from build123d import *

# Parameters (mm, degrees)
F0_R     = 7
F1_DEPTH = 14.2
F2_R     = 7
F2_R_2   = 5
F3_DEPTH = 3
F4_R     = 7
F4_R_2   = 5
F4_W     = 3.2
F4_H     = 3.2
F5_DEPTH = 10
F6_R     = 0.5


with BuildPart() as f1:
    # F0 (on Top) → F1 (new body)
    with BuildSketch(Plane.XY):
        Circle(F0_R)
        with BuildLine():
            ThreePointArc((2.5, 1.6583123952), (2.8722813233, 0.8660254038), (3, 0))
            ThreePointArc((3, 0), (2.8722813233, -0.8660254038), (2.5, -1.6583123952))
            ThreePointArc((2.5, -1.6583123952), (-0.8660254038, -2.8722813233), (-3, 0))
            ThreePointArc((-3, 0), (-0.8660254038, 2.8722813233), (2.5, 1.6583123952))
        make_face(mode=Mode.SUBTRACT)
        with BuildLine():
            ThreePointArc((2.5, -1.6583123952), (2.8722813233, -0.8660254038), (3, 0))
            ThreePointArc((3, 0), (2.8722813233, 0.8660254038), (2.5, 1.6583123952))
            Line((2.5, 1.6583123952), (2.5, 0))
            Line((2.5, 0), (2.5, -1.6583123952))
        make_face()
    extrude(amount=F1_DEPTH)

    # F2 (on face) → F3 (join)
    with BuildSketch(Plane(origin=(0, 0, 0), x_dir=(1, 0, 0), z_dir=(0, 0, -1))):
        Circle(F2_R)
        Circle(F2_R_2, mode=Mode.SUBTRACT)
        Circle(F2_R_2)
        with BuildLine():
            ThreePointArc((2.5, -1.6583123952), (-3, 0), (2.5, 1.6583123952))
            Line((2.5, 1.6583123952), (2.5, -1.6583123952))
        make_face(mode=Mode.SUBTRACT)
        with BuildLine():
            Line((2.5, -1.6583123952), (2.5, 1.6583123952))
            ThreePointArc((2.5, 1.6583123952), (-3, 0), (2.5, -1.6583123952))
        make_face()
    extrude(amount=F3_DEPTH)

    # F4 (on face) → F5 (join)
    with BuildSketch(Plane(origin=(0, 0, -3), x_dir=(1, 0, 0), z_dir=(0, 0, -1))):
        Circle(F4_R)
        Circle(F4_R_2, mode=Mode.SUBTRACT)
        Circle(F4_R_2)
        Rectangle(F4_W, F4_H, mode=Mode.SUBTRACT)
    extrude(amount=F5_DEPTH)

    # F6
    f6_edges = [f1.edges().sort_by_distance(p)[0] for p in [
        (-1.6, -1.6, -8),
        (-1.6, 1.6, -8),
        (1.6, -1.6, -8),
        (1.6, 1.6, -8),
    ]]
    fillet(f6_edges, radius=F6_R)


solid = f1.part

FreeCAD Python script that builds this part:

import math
import FreeCAD as App
import Part
import Sketcher

V = App.Vector
Q = App.Units.Quantity


def edges_at(feature, points):
    """Names of the edges that pass closest to the given points."""
    edges = feature.Shape.Edges
    near = lambda p: min(range(len(edges)), key=lambda i: edges[i].distToShape(Part.Vertex(*p))[0])
    return sorted({f"Edge{near(p) + 1}" for p in points})


def add_polygon(sketch, points):
    """Adds a closed chain of lines whose ends are joined by coincident constraints."""
    first, n = sketch.GeometryCount, len(points)
    for a, b in zip(points, points[1:] + points[:1]):
        sketch.addGeometry(Part.LineSegment(App.Vector(*a, 0), App.Vector(*b, 0)), False)
    for i in range(n):
        sketch.addConstraint(Sketcher.Constraint("Coincident", first + i, 2, first + (i + 1) % n, 1))

doc = App.newDocument("Part")
params = doc.addObject("Spreadsheet::Sheet", "Params")
for row, (alias, value) in enumerate([
    ("sketch1_diameter", "14 mm"),
    ("sketch1_radius", "3 mm"),
    ("pad1_length", "14.2 mm"),
    ("sketch2_diameter", "14 mm"),
    ("pad2_length", "3 mm"),
    ("sketch3_diameter", "14 mm"),
    ("sketch3_width", "3.2 mm"),
    ("pad3_length", "10 mm"),
    ("fillet_radius", "0.5 mm"),
], start=1):
    params.set(f"A{row}", alias)
    params.set(f"B{row}", "=" + value)
    params.setAlias(f"B{row}", alias)

body = doc.addObject("PartDesign::Body", "Body")

# Sketch on XY plane
sketch1 = body.newObject("Sketcher::SketchObject", "Sketch")
sketch1.AttachmentSupport = (doc.getObject("XY_Plane"), [""])
sketch1.MapMode = "FlatFace"
sketch1.addGeometry(Part.Circle(V(0, 0, 0), V(0, 0, 1), 7), False)
sketch1.addGeometry(Part.ArcOfCircle(Part.Circle(V(0, 0, 0), V(0, 0, 1), 3), math.radians(33.55731), math.radians(180)), False)
sketch1.addGeometry(Part.LineSegment(V(2.5, 1.658312, 0), V(2.5, -1.658312, 0)), False)
sketch1.addGeometry(Part.ArcOfCircle(Part.Circle(V(0, 0, 0), V(0, 0, 1), 3), math.radians(180), math.radians(326.44269)), False)
sketch1.addConstraint(Sketcher.Constraint("Coincident", 1, 1, 2, 1))
sketch1.addConstraint(Sketcher.Constraint("Coincident", 2, 2, 3, 2))
sketch1.addConstraint(Sketcher.Constraint("Tangent", 3, 1, 1, 2))
sketch1.addConstraint(Sketcher.Constraint("Vertical", 2))
sketch1.addConstraint(Sketcher.Constraint("Coincident", 0, 3, -1, 1))
sketch1.addConstraint(Sketcher.Constraint("Coincident", 1, 3, -1, 1))
sketch1.addConstraint(Sketcher.Constraint("Equal", 1, 3))
sketch1.addConstraint(Sketcher.Constraint("PointOnObject", 3, 1, -1))
sketch1.addConstraint(Sketcher.Constraint("Diameter", 0, Q("14 mm")))
sketch1.addConstraint(Sketcher.Constraint("Radius", 1, Q("3 mm")))
sketch1.addConstraint(Sketcher.Constraint("DistanceX", -1, 1, 1, 1, Q("2.5 mm")))
sketch1.setExpression("Constraints[8]", "Params.sketch1_diameter")
sketch1.setExpression("Constraints[9]", "Params.sketch1_radius")
pad1 = body.newObject("PartDesign::Pad", "Pad")
pad1.Profile = sketch1
pad1.setExpression("Length", "Params.pad1_length")

# Sketch on XY plane
sketch2 = body.newObject("Sketcher::SketchObject", "Sketch001")
sketch2.AttachmentSupport = (doc.getObject("XY_Plane"), [""])
sketch2.MapMode = "FlatFace"
sketch2.addGeometry(Part.Circle(V(0, 0, 0), V(0, 0, 1), 7), False)
sketch2.addConstraint(Sketcher.Constraint("Coincident", 0, 3, -1, 1))
sketch2.addConstraint(Sketcher.Constraint("Diameter", 0, Q("14 mm")))
sketch2.setExpression("Constraints[1]", "Params.sketch2_diameter")
pad2 = body.newObject("PartDesign::Pad", "Pad001")
pad2.Profile = sketch2
pad2.setExpression("Length", "Params.pad2_length")
pad2.Reversed = True

# Sketch on XY plane
sketch3 = body.newObject("Sketcher::SketchObject", "Sketch002")
sketch3.AttachmentSupport = (doc.getObject("XY_Plane"), [""])
sketch3.MapMode = "FlatFace"
sketch3.AttachmentOffset = App.Placement(V(0, 0, -3), App.Rotation())
sketch3.addGeometry(Part.Circle(V(0, 0, 0), V(0, 0, 1), 7), False)  # 0
add_polygon(sketch3, [(1.6, 1.6), (-1.6, 1.6), (-1.6, -1.6), (1.6, -1.6)])  # lines 1-4
sketch3.addConstraint(Sketcher.Constraint("Horizontal", 1))
sketch3.addConstraint(Sketcher.Constraint("Vertical", 2))
sketch3.addConstraint(Sketcher.Constraint("Horizontal", 3))
sketch3.addConstraint(Sketcher.Constraint("Vertical", 4))
sketch3.addConstraint(Sketcher.Constraint("Coincident", 0, 3, -1, 1))
sketch3.addConstraint(Sketcher.Constraint("Symmetric", 1, 2, 3, 2, -1, 1))
sketch3.addConstraint(Sketcher.Constraint("Equal", 3, 2))
sketch3.addConstraint(Sketcher.Constraint("Diameter", 0, Q("14 mm")))
sketch3.addConstraint(Sketcher.Constraint("DistanceX", 1, 2, 1, 1, Q("3.2 mm")))
sketch3.setExpression("Constraints[11]", "Params.sketch3_diameter")
sketch3.setExpression("Constraints[12]", "Params.sketch3_width")
pad3 = body.newObject("PartDesign::Pad", "Pad002")
pad3.Profile = sketch3
pad3.setExpression("Length", "Params.pad3_length")
pad3.Reversed = True
doc.recompute()

fillet = body.newObject("PartDesign::Fillet", "Fillet")
fillet.Base = (pad3, edges_at(pad3, [
    (-1.6, -1.6, -8),
    (-1.6, 1.6, -8),
    (1.6, -1.6, -8),
    (1.6, 1.6, -8),
]))
fillet.setExpression("Radius", "Params.fillet_radius")

doc.recompute()
